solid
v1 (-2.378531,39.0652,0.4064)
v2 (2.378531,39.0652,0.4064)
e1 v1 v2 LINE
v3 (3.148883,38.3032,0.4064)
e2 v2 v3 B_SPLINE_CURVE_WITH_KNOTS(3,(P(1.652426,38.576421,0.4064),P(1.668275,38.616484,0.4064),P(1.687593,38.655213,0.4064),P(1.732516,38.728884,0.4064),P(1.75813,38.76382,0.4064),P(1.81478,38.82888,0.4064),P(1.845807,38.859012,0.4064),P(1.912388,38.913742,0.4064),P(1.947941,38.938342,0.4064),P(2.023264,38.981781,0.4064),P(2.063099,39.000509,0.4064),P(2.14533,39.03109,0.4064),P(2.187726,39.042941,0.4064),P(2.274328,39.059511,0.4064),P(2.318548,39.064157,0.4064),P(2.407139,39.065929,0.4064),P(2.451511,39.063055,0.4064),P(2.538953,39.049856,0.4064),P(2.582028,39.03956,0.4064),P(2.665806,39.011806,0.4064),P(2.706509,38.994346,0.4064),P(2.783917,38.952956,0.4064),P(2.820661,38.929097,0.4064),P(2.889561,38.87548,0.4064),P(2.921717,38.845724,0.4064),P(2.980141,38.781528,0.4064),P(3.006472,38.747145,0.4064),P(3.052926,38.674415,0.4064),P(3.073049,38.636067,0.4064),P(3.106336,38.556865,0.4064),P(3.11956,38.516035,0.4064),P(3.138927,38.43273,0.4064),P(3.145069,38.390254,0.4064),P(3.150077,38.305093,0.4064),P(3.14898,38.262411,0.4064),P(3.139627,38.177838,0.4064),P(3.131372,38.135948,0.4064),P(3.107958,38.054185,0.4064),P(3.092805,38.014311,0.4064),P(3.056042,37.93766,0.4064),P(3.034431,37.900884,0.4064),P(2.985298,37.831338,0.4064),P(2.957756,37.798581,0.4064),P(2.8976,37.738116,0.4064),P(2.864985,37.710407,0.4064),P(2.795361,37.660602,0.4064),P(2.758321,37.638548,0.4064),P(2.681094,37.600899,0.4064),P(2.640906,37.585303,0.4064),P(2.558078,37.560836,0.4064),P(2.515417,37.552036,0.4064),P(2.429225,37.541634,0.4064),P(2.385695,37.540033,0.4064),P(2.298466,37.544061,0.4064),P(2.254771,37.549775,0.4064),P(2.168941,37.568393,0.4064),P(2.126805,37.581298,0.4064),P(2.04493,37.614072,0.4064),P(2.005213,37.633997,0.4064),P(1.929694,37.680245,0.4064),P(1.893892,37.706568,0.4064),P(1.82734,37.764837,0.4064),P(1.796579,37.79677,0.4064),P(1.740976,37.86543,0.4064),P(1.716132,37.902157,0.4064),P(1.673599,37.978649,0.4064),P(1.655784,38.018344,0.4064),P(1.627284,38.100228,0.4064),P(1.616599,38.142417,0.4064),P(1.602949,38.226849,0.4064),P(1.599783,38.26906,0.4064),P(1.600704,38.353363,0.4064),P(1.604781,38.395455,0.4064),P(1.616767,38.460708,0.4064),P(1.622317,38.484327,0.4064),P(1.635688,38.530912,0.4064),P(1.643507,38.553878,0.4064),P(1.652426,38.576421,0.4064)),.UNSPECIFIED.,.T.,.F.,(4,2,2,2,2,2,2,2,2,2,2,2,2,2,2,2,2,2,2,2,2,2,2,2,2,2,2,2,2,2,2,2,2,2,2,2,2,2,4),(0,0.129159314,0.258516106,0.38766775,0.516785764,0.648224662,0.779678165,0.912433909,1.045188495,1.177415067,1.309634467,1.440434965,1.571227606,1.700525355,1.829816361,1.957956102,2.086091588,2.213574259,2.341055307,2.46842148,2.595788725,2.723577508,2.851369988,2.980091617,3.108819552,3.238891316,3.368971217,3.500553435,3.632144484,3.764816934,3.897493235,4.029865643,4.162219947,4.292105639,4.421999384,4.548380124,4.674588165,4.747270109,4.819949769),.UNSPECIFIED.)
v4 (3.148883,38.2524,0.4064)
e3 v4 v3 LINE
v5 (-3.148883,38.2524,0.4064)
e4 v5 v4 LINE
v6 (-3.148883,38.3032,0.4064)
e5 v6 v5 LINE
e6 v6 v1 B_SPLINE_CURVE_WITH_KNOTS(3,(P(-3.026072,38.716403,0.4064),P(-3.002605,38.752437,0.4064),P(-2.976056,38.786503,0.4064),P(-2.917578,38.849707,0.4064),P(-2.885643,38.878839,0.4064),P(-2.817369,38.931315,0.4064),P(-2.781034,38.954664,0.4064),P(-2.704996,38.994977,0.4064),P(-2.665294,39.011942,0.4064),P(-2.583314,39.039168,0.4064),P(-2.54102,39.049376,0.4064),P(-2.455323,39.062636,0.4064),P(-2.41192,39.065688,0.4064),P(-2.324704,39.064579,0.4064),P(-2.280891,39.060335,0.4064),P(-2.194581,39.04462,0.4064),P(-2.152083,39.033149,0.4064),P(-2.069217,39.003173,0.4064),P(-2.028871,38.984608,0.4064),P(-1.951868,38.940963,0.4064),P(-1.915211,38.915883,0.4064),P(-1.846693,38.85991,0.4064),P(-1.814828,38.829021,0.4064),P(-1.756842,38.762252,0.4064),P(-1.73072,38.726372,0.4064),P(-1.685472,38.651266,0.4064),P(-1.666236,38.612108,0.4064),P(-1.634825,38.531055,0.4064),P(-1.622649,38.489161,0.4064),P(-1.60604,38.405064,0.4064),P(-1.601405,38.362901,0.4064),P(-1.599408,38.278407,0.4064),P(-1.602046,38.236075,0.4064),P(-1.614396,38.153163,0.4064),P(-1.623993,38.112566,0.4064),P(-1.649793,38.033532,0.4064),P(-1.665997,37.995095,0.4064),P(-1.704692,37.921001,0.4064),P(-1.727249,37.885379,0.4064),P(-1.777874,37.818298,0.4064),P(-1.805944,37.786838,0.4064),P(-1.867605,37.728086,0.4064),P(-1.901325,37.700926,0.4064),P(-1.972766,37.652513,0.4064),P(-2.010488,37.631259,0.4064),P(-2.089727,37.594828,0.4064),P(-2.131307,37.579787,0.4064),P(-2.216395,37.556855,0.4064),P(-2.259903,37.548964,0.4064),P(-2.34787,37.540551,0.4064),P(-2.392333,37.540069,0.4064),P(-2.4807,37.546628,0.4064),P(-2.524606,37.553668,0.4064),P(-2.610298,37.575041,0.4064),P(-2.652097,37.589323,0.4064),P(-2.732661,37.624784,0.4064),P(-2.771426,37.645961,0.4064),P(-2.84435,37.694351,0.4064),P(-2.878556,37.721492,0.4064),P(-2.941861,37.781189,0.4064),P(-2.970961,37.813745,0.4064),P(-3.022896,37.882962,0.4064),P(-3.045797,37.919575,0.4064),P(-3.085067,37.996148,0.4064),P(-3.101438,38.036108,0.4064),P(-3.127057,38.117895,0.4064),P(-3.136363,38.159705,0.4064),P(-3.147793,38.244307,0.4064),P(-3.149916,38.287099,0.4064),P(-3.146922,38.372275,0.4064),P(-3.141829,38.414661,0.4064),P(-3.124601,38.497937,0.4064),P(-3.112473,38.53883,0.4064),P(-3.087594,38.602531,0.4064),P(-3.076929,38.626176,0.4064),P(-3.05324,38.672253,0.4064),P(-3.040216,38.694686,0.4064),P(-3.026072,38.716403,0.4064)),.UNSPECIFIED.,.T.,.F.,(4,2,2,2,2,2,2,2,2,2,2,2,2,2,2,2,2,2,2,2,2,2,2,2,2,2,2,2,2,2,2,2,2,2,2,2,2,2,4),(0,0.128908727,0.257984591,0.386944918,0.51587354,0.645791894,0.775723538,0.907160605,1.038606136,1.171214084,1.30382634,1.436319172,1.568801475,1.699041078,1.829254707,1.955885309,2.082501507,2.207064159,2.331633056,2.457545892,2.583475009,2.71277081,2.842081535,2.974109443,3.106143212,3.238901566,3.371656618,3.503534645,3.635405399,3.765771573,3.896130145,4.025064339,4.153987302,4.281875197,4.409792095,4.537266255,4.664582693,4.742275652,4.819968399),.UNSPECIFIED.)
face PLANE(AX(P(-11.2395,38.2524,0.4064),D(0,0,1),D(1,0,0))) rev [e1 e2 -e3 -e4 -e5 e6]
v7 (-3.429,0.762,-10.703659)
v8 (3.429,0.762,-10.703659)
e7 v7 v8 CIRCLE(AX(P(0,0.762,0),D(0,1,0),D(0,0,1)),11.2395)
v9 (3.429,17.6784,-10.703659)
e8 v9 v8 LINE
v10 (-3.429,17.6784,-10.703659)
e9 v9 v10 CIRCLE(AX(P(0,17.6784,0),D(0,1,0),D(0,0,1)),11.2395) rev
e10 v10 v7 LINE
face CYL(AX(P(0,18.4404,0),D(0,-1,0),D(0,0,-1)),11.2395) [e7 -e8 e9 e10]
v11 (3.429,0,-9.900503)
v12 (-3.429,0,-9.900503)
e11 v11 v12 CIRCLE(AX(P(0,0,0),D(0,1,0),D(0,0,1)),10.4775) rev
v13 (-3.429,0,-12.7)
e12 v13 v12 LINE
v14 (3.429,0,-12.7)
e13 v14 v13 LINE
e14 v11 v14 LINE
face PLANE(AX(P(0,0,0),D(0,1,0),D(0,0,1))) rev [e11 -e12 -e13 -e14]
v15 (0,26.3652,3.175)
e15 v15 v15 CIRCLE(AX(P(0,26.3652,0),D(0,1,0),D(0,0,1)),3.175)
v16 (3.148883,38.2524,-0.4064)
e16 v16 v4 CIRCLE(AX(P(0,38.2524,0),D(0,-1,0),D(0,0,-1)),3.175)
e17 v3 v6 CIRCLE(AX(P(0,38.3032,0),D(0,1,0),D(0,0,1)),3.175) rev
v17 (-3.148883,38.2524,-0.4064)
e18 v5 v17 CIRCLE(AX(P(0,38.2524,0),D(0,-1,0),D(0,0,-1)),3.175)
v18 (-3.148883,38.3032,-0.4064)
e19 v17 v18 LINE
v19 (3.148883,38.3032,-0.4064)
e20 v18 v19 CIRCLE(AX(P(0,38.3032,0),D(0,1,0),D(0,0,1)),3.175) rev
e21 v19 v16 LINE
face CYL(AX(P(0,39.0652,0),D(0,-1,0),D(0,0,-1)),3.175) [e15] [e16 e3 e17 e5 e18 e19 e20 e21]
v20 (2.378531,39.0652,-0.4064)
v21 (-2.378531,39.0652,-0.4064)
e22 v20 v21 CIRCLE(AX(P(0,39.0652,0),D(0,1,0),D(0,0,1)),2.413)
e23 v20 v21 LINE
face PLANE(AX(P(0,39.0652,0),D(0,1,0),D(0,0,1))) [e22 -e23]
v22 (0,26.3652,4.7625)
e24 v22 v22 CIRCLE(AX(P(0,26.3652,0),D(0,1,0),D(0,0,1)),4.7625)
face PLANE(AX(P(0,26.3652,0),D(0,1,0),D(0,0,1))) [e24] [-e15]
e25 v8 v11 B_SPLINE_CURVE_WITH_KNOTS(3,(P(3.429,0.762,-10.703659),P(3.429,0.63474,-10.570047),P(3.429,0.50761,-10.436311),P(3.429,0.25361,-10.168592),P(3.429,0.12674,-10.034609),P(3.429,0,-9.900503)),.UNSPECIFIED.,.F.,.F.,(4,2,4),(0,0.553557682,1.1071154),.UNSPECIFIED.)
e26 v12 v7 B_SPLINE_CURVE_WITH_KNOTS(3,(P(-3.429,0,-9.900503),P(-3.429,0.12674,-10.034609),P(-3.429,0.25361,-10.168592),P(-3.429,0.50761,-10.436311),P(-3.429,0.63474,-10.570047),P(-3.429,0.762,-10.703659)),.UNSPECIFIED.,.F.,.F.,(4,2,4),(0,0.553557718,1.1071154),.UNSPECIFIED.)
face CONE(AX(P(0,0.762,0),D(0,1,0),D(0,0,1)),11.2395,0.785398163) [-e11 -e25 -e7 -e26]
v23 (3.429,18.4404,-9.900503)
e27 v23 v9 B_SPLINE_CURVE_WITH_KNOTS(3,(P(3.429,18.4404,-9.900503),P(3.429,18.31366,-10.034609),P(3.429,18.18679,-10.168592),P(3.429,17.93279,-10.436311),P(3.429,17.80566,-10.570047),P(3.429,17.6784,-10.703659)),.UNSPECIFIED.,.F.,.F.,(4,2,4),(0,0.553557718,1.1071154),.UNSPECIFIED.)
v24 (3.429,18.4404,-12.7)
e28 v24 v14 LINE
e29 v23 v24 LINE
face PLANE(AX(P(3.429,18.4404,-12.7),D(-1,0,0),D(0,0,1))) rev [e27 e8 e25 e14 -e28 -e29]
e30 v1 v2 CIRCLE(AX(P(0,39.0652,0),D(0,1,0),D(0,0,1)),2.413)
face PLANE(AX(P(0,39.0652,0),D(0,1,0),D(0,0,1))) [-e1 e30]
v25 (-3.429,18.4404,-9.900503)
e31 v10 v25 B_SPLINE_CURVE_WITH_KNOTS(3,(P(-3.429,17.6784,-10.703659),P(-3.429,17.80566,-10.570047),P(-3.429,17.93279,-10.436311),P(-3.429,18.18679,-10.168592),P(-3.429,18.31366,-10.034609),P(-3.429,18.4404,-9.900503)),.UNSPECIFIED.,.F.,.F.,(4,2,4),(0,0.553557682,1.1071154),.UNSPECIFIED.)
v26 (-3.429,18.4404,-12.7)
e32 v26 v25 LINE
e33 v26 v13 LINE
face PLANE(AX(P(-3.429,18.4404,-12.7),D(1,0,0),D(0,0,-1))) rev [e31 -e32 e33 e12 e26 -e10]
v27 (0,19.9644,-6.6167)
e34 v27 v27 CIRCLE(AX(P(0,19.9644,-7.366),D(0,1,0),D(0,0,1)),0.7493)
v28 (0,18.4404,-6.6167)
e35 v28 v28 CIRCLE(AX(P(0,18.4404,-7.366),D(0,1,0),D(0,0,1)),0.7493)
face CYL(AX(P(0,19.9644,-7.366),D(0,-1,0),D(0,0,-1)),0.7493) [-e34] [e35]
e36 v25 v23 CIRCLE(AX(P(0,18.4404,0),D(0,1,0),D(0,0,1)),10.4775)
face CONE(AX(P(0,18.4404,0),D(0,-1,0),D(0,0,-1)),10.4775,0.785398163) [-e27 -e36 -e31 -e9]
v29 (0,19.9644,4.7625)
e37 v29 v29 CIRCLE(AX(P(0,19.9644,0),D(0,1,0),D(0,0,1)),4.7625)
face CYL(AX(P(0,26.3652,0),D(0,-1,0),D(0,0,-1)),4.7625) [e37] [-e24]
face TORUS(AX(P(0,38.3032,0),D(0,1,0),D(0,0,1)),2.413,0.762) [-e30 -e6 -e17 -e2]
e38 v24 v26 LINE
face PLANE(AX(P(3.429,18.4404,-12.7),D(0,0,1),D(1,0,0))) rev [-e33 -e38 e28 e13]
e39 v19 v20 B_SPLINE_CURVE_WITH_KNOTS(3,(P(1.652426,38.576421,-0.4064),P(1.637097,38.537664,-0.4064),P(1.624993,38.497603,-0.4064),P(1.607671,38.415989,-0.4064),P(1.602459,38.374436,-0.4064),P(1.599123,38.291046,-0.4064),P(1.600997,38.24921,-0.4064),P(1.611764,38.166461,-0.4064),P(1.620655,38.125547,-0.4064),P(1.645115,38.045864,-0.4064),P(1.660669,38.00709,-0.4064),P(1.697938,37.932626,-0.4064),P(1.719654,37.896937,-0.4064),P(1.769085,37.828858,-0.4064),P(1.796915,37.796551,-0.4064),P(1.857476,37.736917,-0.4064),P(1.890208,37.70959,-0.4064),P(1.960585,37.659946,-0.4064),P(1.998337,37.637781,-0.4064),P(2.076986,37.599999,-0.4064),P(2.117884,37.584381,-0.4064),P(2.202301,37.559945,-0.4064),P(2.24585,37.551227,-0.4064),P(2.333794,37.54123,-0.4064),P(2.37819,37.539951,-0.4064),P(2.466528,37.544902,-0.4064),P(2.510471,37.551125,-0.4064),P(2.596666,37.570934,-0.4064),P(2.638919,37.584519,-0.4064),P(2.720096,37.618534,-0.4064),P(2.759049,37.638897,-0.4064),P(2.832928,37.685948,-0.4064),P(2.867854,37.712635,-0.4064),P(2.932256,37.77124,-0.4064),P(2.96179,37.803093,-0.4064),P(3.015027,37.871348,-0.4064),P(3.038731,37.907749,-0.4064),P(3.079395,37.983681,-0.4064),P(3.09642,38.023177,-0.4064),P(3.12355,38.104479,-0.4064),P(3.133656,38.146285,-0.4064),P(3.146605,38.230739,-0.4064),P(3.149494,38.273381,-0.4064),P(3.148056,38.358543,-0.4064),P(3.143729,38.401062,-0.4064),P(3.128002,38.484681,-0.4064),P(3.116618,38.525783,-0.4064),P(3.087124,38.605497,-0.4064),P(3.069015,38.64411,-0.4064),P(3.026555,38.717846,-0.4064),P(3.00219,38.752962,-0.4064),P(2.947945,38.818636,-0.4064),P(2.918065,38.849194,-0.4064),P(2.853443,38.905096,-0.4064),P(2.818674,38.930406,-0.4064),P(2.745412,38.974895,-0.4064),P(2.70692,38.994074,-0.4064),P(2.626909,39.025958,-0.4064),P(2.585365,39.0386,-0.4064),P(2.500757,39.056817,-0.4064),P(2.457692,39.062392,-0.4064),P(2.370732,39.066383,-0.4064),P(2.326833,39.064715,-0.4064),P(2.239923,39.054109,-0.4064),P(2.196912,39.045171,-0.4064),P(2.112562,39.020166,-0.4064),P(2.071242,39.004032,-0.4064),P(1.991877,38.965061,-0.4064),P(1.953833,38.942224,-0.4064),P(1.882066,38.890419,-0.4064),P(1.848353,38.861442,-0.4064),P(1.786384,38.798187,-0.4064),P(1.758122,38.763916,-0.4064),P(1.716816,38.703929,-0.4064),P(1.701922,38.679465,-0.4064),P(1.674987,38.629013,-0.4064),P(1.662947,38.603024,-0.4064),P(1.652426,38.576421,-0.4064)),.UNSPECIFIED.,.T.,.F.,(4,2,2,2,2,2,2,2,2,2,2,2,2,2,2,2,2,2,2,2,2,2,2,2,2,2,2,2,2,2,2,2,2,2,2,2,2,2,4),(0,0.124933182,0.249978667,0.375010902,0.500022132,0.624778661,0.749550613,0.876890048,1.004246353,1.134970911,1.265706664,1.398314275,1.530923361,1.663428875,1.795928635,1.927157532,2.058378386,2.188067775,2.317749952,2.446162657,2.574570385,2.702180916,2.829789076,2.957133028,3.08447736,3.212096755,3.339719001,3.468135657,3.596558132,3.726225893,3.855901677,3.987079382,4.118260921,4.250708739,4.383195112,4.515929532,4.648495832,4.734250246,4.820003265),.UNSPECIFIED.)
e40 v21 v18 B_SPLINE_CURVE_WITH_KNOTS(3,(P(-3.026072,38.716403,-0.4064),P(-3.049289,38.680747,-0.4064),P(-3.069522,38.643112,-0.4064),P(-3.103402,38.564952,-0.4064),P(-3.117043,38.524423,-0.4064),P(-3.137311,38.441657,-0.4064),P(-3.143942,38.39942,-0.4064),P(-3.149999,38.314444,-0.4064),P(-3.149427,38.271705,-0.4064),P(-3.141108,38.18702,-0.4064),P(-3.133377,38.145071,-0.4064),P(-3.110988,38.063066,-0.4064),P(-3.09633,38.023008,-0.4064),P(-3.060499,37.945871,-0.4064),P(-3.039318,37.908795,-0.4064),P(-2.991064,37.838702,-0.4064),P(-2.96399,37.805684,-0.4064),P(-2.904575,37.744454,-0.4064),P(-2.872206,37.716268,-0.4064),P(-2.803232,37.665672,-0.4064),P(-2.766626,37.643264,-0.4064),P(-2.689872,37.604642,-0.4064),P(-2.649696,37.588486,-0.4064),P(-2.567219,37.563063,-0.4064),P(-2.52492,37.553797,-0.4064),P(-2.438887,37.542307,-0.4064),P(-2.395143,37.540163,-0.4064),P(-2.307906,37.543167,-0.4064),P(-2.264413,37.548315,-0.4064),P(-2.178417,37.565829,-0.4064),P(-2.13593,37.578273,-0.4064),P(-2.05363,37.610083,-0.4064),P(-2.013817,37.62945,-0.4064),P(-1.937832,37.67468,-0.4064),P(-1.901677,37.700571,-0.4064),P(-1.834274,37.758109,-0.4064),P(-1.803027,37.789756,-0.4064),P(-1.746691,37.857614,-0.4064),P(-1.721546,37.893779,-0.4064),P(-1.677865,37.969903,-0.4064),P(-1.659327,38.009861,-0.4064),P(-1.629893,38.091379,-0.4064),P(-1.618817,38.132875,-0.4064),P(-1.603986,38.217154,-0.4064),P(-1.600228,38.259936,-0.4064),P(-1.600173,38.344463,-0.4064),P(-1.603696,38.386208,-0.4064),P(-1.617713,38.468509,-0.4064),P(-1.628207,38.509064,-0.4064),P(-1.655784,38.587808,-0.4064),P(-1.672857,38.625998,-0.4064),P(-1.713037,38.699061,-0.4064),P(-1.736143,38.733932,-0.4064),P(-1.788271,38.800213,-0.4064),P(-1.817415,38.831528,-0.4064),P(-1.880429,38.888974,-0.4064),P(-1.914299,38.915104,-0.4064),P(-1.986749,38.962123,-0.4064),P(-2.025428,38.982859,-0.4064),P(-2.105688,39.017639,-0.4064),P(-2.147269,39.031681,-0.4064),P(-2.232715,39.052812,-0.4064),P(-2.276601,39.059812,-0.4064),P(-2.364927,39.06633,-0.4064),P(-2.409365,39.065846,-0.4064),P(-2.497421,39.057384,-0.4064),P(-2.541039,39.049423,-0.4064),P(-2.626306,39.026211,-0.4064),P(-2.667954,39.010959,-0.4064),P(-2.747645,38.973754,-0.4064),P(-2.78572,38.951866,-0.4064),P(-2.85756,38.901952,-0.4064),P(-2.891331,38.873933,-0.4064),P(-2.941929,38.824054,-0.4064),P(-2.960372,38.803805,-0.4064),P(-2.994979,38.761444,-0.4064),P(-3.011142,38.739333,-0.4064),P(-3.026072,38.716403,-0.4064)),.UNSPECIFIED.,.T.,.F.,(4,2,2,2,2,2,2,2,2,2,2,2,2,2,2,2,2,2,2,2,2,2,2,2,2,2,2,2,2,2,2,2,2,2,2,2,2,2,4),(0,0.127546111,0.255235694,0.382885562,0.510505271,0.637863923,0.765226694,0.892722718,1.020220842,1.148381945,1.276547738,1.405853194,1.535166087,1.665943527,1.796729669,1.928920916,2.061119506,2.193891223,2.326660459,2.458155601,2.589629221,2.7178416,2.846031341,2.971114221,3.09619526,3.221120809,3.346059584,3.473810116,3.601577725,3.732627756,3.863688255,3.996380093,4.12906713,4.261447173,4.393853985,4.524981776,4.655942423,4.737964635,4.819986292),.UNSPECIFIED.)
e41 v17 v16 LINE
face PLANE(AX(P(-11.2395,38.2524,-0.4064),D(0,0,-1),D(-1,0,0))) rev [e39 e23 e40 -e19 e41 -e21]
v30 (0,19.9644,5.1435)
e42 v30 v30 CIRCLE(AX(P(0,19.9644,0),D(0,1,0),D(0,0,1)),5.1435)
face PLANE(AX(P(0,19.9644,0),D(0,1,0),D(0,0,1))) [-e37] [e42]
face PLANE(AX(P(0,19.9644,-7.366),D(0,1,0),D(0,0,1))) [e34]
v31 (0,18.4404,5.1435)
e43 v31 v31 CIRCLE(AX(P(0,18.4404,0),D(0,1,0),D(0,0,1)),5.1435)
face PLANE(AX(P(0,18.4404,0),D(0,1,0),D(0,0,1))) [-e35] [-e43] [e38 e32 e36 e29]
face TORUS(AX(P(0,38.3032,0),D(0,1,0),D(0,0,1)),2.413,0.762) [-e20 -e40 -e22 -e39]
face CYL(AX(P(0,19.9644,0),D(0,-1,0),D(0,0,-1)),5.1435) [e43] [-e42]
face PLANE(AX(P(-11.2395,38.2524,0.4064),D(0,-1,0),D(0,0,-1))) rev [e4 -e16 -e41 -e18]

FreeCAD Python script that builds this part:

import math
import FreeCAD as App
import Part
import Sketcher
Q = App.Units.Quantity


def edges_at(feature, points):
    """Names of the edges that pass closest to the given points."""
    edges = feature.Shape.Edges
    near = lambda p: min(range(len(edges)), key=lambda i: edges[i].distToShape(Part.Vertex(*p))[0])
    return sorted({f"Edge{near(p) + 1}" for p in points})


def add_polygon(sketch, points):
    """Adds a closed chain of lines whose ends are joined by coincident constraints."""
    first, n = sketch.GeometryCount, len(points)
    for a, b in zip(points, points[1:] + points[:1]):
        sketch.addGeometry(Part.LineSegment(App.Vector(*a, 0), App.Vector(*b, 0)), False)
    for i in range(n):
        sketch.addConstraint(Sketcher.Constraint("Coincident", first + i, 2, first + (i + 1) % n, 1))

doc = App.newDocument("Part")
body = doc.addObject("PartDesign::Body", "Body")

# Sketch on XZ plane
sketch1 = doc.addObject("Sketcher::SketchObject", "Sketch")
body.addObject(sketch1)
sketch1.AttachmentSupport = (doc.XZ_Plane, [""])
sketch1.MapMode = "FlatFace"
sketch1.addGeometry(Part.LineSegment(App.Vector(3.4, -12.7, 0), App.Vector(-3.4, -12.7, 0)), False)
sketch1.addGeometry(Part.LineSegment(App.Vector(-3.4, -12.7, 0), App.Vector(-3.4, -10.7, 0)), False)
sketch1.addGeometry(Part.ArcOfCircle(Part.Circle(App.Vector(0, 0, 0), App.Vector(0, 0, 1), 11.2), math.radians(-72), math.radians(252)), False)
sketch1.addGeometry(Part.LineSegment(App.Vector(3.4, -10.7, 0), App.Vector(3.4, -12.7, 0)), False)
sketch1.addConstraint(Sketcher.Constraint("Coincident", 0, 2, 1, 1))
sketch1.addConstraint(Sketcher.Constraint("Coincident", 1, 2, 2, 2))
sketch1.addConstraint(Sketcher.Constraint("Coincident", 2, 1, 3, 1))
sketch1.addConstraint(Sketcher.Constraint("Coincident", 3, 2, 0, 1))
sketch1.addConstraint(Sketcher.Constraint("Horizontal", 0))
sketch1.addConstraint(Sketcher.Constraint("Vertical", 1))
sketch1.addConstraint(Sketcher.Constraint("Vertical", 3))
sketch1.addConstraint(Sketcher.Constraint("Coincident", 2, 3, -1, 1))
sketch1.addConstraint(Sketcher.Constraint("Horizontal", 1, 2, 2, 1))
sketch1.addConstraint(Sketcher.Constraint("DistanceX", 0, 2, 0, 1, Q("0.27 in")))
sketch1.addConstraint(Sketcher.Constraint("DistanceY", 0, 2, -1, 1, Q("0.5 in")))
sketch1.addConstraint(Sketcher.Constraint("Radius", 2, Q("0.4425 in")))
pad1 = doc.addObject("PartDesign::Pad", "Pad")
body.addObject(pad1)
pad1.Profile = sketch1
pad1.Length = Q("0.726 in")
pad1.Reversed = True

# Sketch on XZ plane
sketch2 = doc.addObject("Sketcher::SketchObject", "Sketch001")
body.addObject(sketch2)
sketch2.AttachmentSupport = (doc.XZ_Plane, [""])
sketch2.MapMode = "FlatFace"
sketch2.AttachmentOffset = App.Placement(App.Vector(0, 0, -0.726 * 25.4), App.Rotation())
sketch2.addGeometry(Part.Circle(App.Vector(0, 0, 0), App.Vector(0, 0, 1), 5.1), False)
sketch2.addGeometry(Part.Circle(App.Vector(0, -7.4, 0), App.Vector(0, 0, 1), 0.7), False)
sketch2.addConstraint(Sketcher.Constraint("Coincident", 0, 3, -1, 1))
sketch2.addConstraint(Sketcher.Constraint("PointOnObject", 1, 3, -2))
sketch2.addConstraint(Sketcher.Constraint("Diameter", 0, Q("0.405 in")))
sketch2.addConstraint(Sketcher.Constraint("Diameter", 1, Q("0.059 in")))
sketch2.addConstraint(Sketcher.Constraint("DistanceY", 1, 3, -1, 1, Q("0.29 in")))
pad2 = doc.addObject("PartDesign::Pad", "Pad001")
body.addObject(pad2)
pad2.Profile = sketch2
pad2.Length = Q("0.06 in")
pad2.Reversed = True

# Sketch on XZ plane
sketch3 = doc.addObject("Sketcher::SketchObject", "Sketch002")
body.addObject(sketch3)
sketch3.AttachmentSupport = (doc.XZ_Plane, [""])
sketch3.MapMode = "FlatFace"
sketch3.AttachmentOffset = App.Placement(App.Vector(0, 0, -0.786 * 25.4), App.Rotation())
sketch3.addGeometry(Part.Circle(App.Vector(0, 0, 0), App.Vector(0, 0, 1), 4.8), False)
sketch3.addConstraint(Sketcher.Constraint("Coincident", 0, 3, -1, 1))
sketch3.addConstraint(Sketcher.Constraint("Diameter", 0, Q("0.375 in")))
pad3 = doc.addObject("PartDesign::Pad", "Pad002")
body.addObject(pad3)
pad3.Profile = sketch3
pad3.Length = Q("0.252 in")
pad3.Reversed = True

# Sketch on XZ plane
sketch4 = doc.addObject("Sketcher::SketchObject", "Sketch003")
body.addObject(sketch4)
sketch4.AttachmentSupport = (doc.XZ_Plane, [""])
sketch4.MapMode = "FlatFace"
sketch4.AttachmentOffset = App.Placement(App.Vector(0, 0, -1.038 * 25.4), App.Rotation())
sketch4.addGeometry(Part.Circle(App.Vector(0, 0, 0), App.Vector(0, 0, 1), 3.2), False)
sketch4.addConstraint(Sketcher.Constraint("Coincident", 0, 3, -1, 1))
sketch4.addConstraint(Sketcher.Constraint("Diameter", 0, Q("0.25 in")))
pad4 = doc.addObject("PartDesign::Pad", "Pad003")
body.addObject(pad4)
pad4.Profile = sketch4
pad4.Length = Q("0.5 in")
pad4.Reversed = True
doc.recompute()

fillet = doc.addObject("PartDesign::Fillet", "Fillet")
body.addObject(fillet)
fillet.Base = (pad4, edges_at(pad4, [(-3.175, 39.065, 0)]))
fillet.Radius = Q("0.03 in")

# Sketch on YZ plane
sketch5 = doc.addObject("Sketcher::SketchObject", "Sketch004")
body.addObject(sketch5)
sketch5.AttachmentSupport = (doc.YZ_Plane, [""])
sketch5.MapMode = "FlatFace"
add_polygon(sketch5, [(39.9, 0.4), (38.3, 0.4), (38.3, -0.4), (39.9, -0.4)])  # lines 0-3
sketch5.addConstraint(Sketcher.Constraint("Horizontal", 0))
sketch5.addConstraint(Sketcher.Constraint("Vertical", 1))
sketch5.addConstraint(Sketcher.Constraint("Horizontal", 2))
sketch5.addConstraint(Sketcher.Constraint("Vertical", 3))
sketch5.addConstraint(Sketcher.Constraint("DistanceX", 0, 2, 0, 1, Q("0.064 in")))
sketch5.addConstraint(Sketcher.Constraint("DistanceY", 1, 2, 1, 1, Q("0.032 in")))
sketch5.addConstraint(Sketcher.Constraint("DistanceX", -1, 1, 2, 2, Q("1.57 in")))
sketch5.addConstraint(Sketcher.Constraint("DistanceY", -1, 1, 0, 2, Q("0.016 in")))
pocket1 = doc.addObject("PartDesign::Pocket", "Pocket")
body.addObject(pocket1)
pocket1.Profile = sketch5
pocket1.Type = "ThroughAll"
pocket1.Midplane = True
doc.recompute()

chamfer = doc.addObject("PartDesign::Chamfer", "Chamfer")
body.addObject(chamfer)
chamfer.Base = (pocket1, edges_at(pocket1, [(0, 18.44, 11.239), (0, 0, 11.239)]))
chamfer.Size = Q("0.03 in")

doc.recompute()
